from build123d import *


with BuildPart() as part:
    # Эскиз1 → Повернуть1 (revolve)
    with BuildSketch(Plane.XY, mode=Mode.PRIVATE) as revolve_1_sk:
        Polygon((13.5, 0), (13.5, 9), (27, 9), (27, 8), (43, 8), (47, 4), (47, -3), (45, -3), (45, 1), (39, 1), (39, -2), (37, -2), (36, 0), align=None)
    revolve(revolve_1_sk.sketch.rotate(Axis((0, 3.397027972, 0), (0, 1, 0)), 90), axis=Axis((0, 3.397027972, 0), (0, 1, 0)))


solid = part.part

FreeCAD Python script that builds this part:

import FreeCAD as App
import Part
import Sketcher

V = App.Vector
Q = App.Units.Quantity


def add_polygon(sketch, points):
    """Adds a closed chain of lines whose ends are joined by coincident constraints."""
    first, n = sketch.GeometryCount, len(points)
    for a, b in zip(points, points[1:] + points[:1]):
        sketch.addGeometry(Part.LineSegment(App.Vector(*a, 0), App.Vector(*b, 0)), False)
    for i in range(n):
        sketch.addConstraint(Sketcher.Constraint("Coincident", first + i, 2, first + (i + 1) % n, 1))

doc = App.newDocument("Part")
body = doc.addObject("PartDesign::Body", "Body")

sketch1 = body.newObject("Sketcher::SketchObject", "Sketch")
sketch1.AttachmentSupport = (doc.getObject("XY_Plane"), [""])
sketch1.MapMode = "FlatFace"
add_polygon(sketch1, [(13.5, 9), (13.5, 0), (36, 0), (37, -2), (39, -2), (39, 1), (45, 1), (45, -3), (47, -3), (47, 4), (43, 8), (27, 8), (27, 9)])
sketch1.addConstraint(Sketcher.Constraint("Vertical", 0))
sketch1.addConstraint(Sketcher.Constraint("Horizontal", 1))
sketch1.addConstraint(Sketcher.Constraint("Horizontal", 3))
sketch1.addConstraint(Sketcher.Constraint("Vertical", 4))
sketch1.addConstraint(Sketcher.Constraint("Horizontal", 5))
sketch1.addConstraint(Sketcher.Constraint("Vertical", 6))
sketch1.addConstraint(Sketcher.Constraint("Horizontal", 7))
sketch1.addConstraint(Sketcher.Constraint("Vertical", 8))
sketch1.addConstraint(Sketcher.Constraint("Horizontal", 10))
sketch1.addConstraint(Sketcher.Constraint("Vertical", 11))
sketch1.addConstraint(Sketcher.Constraint("Horizontal", 12))
sketch1.addConstraint(Sketcher.Constraint("PointOnObject", 0, 2, -1))
sketch1.addConstraint(Sketcher.Constraint("Equal", 3, 7))
sketch1.addConstraint(Sketcher.Constraint("DistanceX", 3, 1, 3, 2, Q("2 mm")))
sketch1.addConstraint(Sketcher.Constraint("DistanceX", 5, 1, 5, 2, Q("6 mm")))
sketch1.addConstraint(Sketcher.Constraint("DistanceX", 10, 2, 10, 1, Q("16 mm")))
sketch1.addConstraint(Sketcher.Constraint("DistanceY", 0, 2, 0, 1, Q("9 mm")))
sketch1.addConstraint(Sketcher.Constraint("DistanceY", 4, 1, 4, 2, Q("3 mm")))
sketch1.addConstraint(Sketcher.Constraint("DistanceY", 6, 2, 6, 1, Q("4 mm")))
sketch1.addConstraint(Sketcher.Constraint("DistanceY", 8, 1, 8, 2, Q("7 mm")))
sketch1.addConstraint(Sketcher.Constraint("DistanceY", 11, 1, 11, 2, Q("1 mm")))
sketch1.addConstraint(Sketcher.Constraint("Angle", 9, Q("135 deg")))
sketch1.addConstraint(Sketcher.Constraint("DistanceX", 1, 1, 1, 2, Q("22.5 mm")))
sketch1.addConstraint(Sketcher.Constraint("DistanceX", 12, 2, 12, 1, Q("13.5 mm")))
sketch1.addConstraint(Sketcher.Constraint("DistanceX", -1, 1, 1, 2, Q("36 mm")))
sketch1.addConstraint(Sketcher.Constraint("DistanceX", -1, 1, 2, 2, Q("37 mm")))
revolution = body.newObject("PartDesign::Revolution", "Revolution")
revolution.Profile = sketch1
revolution.ReferenceAxis = (sketch1, ["V_Axis"])
revolution.Angle = 360

doc.recompute()
